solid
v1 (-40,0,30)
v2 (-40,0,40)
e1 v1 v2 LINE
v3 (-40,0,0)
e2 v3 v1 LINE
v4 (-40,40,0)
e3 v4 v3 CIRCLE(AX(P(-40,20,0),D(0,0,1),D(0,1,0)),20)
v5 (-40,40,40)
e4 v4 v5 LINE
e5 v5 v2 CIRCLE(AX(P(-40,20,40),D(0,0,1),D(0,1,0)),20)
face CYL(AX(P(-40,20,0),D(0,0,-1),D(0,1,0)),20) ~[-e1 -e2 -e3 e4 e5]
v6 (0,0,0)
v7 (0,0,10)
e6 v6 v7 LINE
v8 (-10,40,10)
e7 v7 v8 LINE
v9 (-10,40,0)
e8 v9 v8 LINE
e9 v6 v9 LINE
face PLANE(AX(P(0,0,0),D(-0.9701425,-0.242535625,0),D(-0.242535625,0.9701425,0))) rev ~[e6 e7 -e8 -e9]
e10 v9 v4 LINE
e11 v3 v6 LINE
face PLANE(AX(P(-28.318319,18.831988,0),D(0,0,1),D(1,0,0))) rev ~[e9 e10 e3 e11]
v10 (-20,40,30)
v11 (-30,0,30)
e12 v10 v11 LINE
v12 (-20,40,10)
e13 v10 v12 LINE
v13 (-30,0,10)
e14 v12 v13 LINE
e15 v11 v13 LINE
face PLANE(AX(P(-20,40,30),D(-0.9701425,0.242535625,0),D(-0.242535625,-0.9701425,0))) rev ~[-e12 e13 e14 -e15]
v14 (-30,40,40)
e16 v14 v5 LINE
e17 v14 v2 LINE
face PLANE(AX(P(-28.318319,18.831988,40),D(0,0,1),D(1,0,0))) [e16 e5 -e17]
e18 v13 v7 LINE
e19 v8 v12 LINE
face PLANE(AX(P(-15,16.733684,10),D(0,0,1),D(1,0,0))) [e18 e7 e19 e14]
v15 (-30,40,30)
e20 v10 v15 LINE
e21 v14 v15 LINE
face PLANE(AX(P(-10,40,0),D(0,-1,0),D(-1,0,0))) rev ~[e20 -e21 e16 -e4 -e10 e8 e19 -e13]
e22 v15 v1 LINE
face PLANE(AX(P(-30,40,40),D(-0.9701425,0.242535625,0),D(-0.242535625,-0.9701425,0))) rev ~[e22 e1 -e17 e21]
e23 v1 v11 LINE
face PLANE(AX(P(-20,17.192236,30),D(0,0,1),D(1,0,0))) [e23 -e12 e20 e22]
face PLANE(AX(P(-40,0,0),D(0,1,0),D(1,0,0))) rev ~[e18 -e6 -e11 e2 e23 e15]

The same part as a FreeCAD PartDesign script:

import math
import FreeCAD as App
import Part
import Sketcher

doc = App.newDocument("Part")
body = doc.addObject("PartDesign::Body", "Body")

# Sketch on XY plane
sketch1 = body.newObject("Sketcher::SketchObject", "Sketch")
sketch1.AttachmentSupport = (doc.getObject("XY_Plane"), [""])
sketch1.MapMode = "FlatFace"
sketch1.addGeometry([
    Part.LineSegment(App.Vector(-40, 0, 0), App.Vector(0, 0, 0)),
    Part.LineSegment(App.Vector(0, 0, 0), App.Vector(-10, 40, 0)),
    Part.LineSegment(App.Vector(-10, 40, 0), App.Vector(-40, 40, 0)),
    Part.ArcOfCircle(Part.Circle(App.Vector(-40, 20, 0), App.Vector(0, 0, 1), 20), math.radians(90), math.radians(270)),
], False)
sketch1.addConstraint([
    Sketcher.Constraint("Coincident", 0, 2, 1, 1),
    Sketcher.Constraint("Coincident", 1, 2, 2, 1),
    Sketcher.Constraint("Tangent", 2, 2, 3, 1),
    Sketcher.Constraint("Tangent", 3, 2, 0, 1),
    Sketcher.Constraint("Horizontal", 0),
    Sketcher.Constraint("Horizontal", 2),
    Sketcher.Constraint("Coincident", 0, 2, -1, 1),
    Sketcher.Constraint("Radius", 3, 20.0),
    Sketcher.Constraint("DistanceX", 0, 1, 0, 2, 40.0),
    Sketcher.Constraint("DistanceX", 2, 2, 2, 1, 30.0),
])
pad1 = body.newObject("PartDesign::Pad", "Pad")
pad1.Profile = sketch1
pad1.Length = 40

# Sketch on XY plane
sketch2 = body.newObject("Sketcher::SketchObject", "Sketch001")
sketch2.AttachmentSupport = (doc.getObject("XY_Plane"), [""])
sketch2.MapMode = "FlatFace"
sketch2.AttachmentOffset = App.Placement(App.Vector(0, 0, 40), App.Rotation())
sketch2.addGeometry([
    Part.LineSegment(App.Vector(-10, 40, 0), App.Vector(-30, 40, 0)),
    Part.LineSegment(App.Vector(-30, 40, 0), App.Vector(-40, 0, 0)),
    Part.LineSegment(App.Vector(-40, 0, 0), App.Vector(0, 0, 0)),
    Part.LineSegment(App.Vector(0, 0, 0), App.Vector(-10, 40, 0)),
], False)
sketch2.addConstraint([
    Sketcher.Constraint("Coincident", 0, 2, 1, 1),
    Sketcher.Constraint("Coincident", 1, 2, 2, 1),
    Sketcher.Constraint("Coincident", 2, 2, 3, 1),
    Sketcher.Constraint("Coincident", 3, 2, 0, 1),
    Sketcher.Constraint("Horizontal", 0),
    Sketcher.Constraint("Horizontal", 2),
    Sketcher.Constraint("Coincident", 2, 2, -1, 1),
    Sketcher.Constraint("Equal", 1, 3),
    Sketcher.Constraint("DistanceX", 0, 2, 0, 1, 20.0),
    Sketcher.Constraint("DistanceX", 2, 1, 2, 2, 40.0),
    Sketcher.Constraint("DistanceY", -1, 1, 0, 2, 40.0),
])
pocket1 = body.newObject("PartDesign::Pocket", "Pocket")
pocket1.Profile = sketch2
pocket1.Length = 10

# Sketch on XY plane
sketch3 = body.newObject("Sketcher::SketchObject", "Sketch002")
sketch3.AttachmentSupport = (doc.getObject("XY_Plane"), [""])
sketch3.MapMode = "FlatFace"
sketch3.AttachmentOffset = App.Placement(App.Vector(0, 0, 30), App.Rotation())
sketch3.addGeometry([
    Part.LineSegment(App.Vector(-10, 40, 0), App.Vector(-20, 40, 0)),
    Part.LineSegment(App.Vector(-20, 40, 0), App.Vector(-30, 0, 0)),
    Part.LineSegment(App.Vector(-30, 0, 0), App.Vector(0, 0, 0)),
    Part.LineSegment(App.Vector(0, 0, 0), App.Vector(-10, 40, 0)),
], False)
sketch3.addConstraint([
    Sketcher.Constraint("Coincident", 0, 2, 1, 1),
    Sketcher.Constraint("Coincident", 1, 2, 2, 1),
    Sketcher.Constraint("Coincident", 2, 2, 3, 1),
    Sketcher.Constraint("Coincident", 3, 2, 0, 1),
    Sketcher.Constraint("Horizontal", 0),
    Sketcher.Constraint("Horizontal", 2),
    Sketcher.Constraint("Coincident", 2, 2, -1, 1),
    Sketcher.Constraint("Equal", 1, 3),
    Sketcher.Constraint("DistanceX", 0, 2, 0, 1, 10.0),
    Sketcher.Constraint("DistanceX", 2, 1, 2, 2, 30.0),
    Sketcher.Constraint("DistanceY", -1, 1, 0, 2, 40.0),
])
pocket2 = body.newObject("PartDesign::Pocket", "Pocket001")
pocket2.Profile = sketch3
pocket2.Length = 20

doc.recompute()
